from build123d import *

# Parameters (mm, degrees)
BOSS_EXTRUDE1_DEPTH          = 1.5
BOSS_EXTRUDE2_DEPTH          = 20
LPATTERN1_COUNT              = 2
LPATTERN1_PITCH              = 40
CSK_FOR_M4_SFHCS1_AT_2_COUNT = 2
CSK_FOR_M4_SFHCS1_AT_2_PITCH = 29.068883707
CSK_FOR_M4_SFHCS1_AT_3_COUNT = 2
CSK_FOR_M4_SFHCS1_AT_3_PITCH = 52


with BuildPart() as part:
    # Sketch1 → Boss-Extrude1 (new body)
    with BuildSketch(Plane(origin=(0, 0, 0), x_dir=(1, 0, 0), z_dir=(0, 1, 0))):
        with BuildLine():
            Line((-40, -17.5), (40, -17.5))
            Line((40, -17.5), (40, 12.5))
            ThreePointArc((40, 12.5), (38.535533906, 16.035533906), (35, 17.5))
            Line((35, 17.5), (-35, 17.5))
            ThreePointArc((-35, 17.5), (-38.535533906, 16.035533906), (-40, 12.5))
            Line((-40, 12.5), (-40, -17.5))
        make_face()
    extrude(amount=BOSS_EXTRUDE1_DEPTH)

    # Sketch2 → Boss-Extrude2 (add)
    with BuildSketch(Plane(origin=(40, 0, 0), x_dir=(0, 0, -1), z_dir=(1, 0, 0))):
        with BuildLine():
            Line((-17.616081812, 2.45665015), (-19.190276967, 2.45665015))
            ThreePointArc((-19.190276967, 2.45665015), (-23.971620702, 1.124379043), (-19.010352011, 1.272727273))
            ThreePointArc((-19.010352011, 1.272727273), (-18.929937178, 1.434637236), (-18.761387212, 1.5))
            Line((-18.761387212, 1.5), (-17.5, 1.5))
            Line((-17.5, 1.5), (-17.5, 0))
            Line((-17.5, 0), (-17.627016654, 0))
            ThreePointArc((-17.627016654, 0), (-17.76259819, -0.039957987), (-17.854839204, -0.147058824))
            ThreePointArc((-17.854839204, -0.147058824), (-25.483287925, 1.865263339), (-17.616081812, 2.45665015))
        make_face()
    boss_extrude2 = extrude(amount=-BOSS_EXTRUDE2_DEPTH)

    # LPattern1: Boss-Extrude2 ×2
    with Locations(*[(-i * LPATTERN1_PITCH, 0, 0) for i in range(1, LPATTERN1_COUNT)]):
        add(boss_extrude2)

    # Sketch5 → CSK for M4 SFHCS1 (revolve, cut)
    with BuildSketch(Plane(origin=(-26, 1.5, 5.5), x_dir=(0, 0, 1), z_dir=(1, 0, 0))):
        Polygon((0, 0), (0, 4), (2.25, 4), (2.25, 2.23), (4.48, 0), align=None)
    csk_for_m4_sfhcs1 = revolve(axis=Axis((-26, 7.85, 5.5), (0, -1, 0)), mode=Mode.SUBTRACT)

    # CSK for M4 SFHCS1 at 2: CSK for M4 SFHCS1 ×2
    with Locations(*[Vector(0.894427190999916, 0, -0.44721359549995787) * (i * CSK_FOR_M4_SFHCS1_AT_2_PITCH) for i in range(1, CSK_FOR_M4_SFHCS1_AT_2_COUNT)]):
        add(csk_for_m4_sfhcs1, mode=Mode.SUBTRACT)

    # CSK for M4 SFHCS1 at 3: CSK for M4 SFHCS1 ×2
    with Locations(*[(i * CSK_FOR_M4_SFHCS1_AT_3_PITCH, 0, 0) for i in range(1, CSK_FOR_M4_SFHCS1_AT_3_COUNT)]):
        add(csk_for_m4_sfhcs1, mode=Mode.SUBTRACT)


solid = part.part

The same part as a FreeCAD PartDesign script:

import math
import FreeCAD as App
import Part
import Sketcher
from FreeCAD import Vector
Q = App.Units.Quantity


def add_polygon(sketch, points):
    """Adds a closed chain of lines whose ends are joined by coincident constraints."""
    first, n = sketch.GeometryCount, len(points)
    for a, b in zip(points, points[1:] + points[:1]):
        sketch.addGeometry(Part.LineSegment(App.Vector(*a, 0), App.Vector(*b, 0)), False)
    for i in range(n):
        sketch.addConstraint(Sketcher.Constraint("Coincident", first + i, 2, first + (i + 1) % n, 1))

doc = App.newDocument("Part")
params = doc.addObject("Spreadsheet::Sheet", "Params")
for row, (alias, value) in enumerate([
    ("sketch1_radius", "5 mm"),
    ("sketch1_width", "80 mm"),
    ("sketch1_height", "30 mm"),
    ("pad1_length", "1.5 mm"),
    ("sketch2_radius", "4 mm"),
    ("sketch2_radius2", "2.5 mm"),
    ("sketch2_radius3", "0.25 mm"),
    ("sketch2_width", "1.5 mm"),
    ("pad2_length", "20 mm"),
    ("linearpattern_pitch", "40 mm"),
    ("sketch3_width", "4 mm"),
    ("sketch3_width2", "1.77 mm"),
    ("sketch3_height", "4.48 mm"),
    ("groove_angle", "360 deg"),
    ("linearpattern2_pitch", "29.068884 mm"),
    ("linearpattern3_pitch", "52 mm"),
], start=1):
    params.set(f"A{row}", alias)
    params.set(f"B{row}", "=" + value)
    params.setAlias(f"B{row}", alias)

body = doc.addObject("PartDesign::Body", "Body")

sketch1 = body.newObject("Sketcher::SketchObject", "Sketch")
sketch1.AttachmentSupport = (doc.getObject("XZ_Plane"), [""])
sketch1.MapMode = "FlatFace"
sketch1.addGeometry([
    Part.LineSegment(Vector(-40, 18, 0), Vector(40, 18, 0)),
    Part.LineSegment(Vector(40, 18, 0), Vector(40, -12, 0)),
    Part.ArcOfCircle(Part.Circle(Vector(35, -12, 0), Vector(0, 0, 1), 5), math.radians(-90), math.radians(0)),
    Part.LineSegment(Vector(35, -18, 0), Vector(-35, -18, 0)),
    Part.ArcOfCircle(Part.Circle(Vector(-35, -12, 0), Vector(0, 0, 1), 5), math.radians(180), math.radians(270)),
    Part.LineSegment(Vector(-40, -12, 0), Vector(-40, 18, 0)),
], False)
sketch1.addConstraint([
    Sketcher.Constraint("Coincident", 0, 2, 1, 1),
    Sketcher.Constraint("Tangent", 1, 2, 2, 2),
    Sketcher.Constraint("Tangent", 2, 1, 3, 1),
    Sketcher.Constraint("Tangent", 3, 2, 4, 2),
    Sketcher.Constraint("Tangent", 4, 1, 5, 1),
    Sketcher.Constraint("Coincident", 5, 2, 0, 1),
    Sketcher.Constraint("Horizontal", 0),
    Sketcher.Constraint("Vertical", 1),
    Sketcher.Constraint("Horizontal", 3),
    Sketcher.Constraint("Vertical", 5),
    Sketcher.Constraint("Equal", 2, 4),
    Sketcher.Constraint("Radius", 2, 5.0),
    Sketcher.Constraint("DistanceX", 0, 1, 0, 2, 80.0),
    Sketcher.Constraint("DistanceY", 1, 2, 1, 1, 30.0),
    Sketcher.Constraint("DistanceX", -1, 1, 2, 3, 35.0),
    Sketcher.Constraint("DistanceY", 2, 3, -1, 1, 12.5),
])
sketch1.setExpression("Constraints[11]", "Params.sketch1_radius")
sketch1.setExpression("Constraints[12]", "Params.sketch1_width")
sketch1.setExpression("Constraints[13]", "Params.sketch1_height")
pad1 = body.newObject("PartDesign::Pad", "Pad")
pad1.Profile = sketch1
pad1.setExpression("Length", "Params.pad1_length")
pad1.Reversed = True

sketch2 = body.newObject("Sketcher::SketchObject", "Sketch001")
sketch2.AttachmentSupport = (doc.getObject("YZ_Plane"), [""])
sketch2.MapMode = "FlatFace"
sketch2.AttachmentOffset = App.Placement(Vector(0, 0, 40), App.Rotation())
sketch2.addGeometry([
    Part.LineSegment(Vector(2.46, 19.19, 0), Vector(2.46, 17.62, 0)),
    Part.ArcOfCircle(Part.Circle(Vector(1.5, 21.5, 0), Vector(0, 0, 1), 4), math.radians(-76), math.radians(246)),
    Part.ArcOfCircle(Part.Circle(Vector(-0.25, 17.63, 0), Vector(0, 0, 1), 0.25), math.radians(0), math.radians(66)),
    Part.LineSegment(Vector(0, 17.63, 0), Vector(0, 17.5, 0)),
    Part.LineSegment(Vector(0, 17.5, 0), Vector(1.5, 17.5, 0)),
    Part.LineSegment(Vector(1.5, 17.5, 0), Vector(1.5, 18.76, 0)),
    Part.ArcOfCircle(Part.Circle(Vector(1.25, 18.76, 0), Vector(0, 0, 1), 0.25), math.radians(0), math.radians(85)),
    Part.ArcOfCircle(Part.Circle(Vector(1.5, 21.5, 0), Vector(0, 0, 1), 2.5), math.radians(-68), math.radians(265)),
], False)
sketch2.addConstraint([
    Sketcher.Constraint("Coincident", 0, 2, 1, 1),
    Sketcher.Constraint("Tangent", 1, 2, 2, 2),
    Sketcher.Constraint("Tangent", 2, 1, 3, 1),
    Sketcher.Constraint("Coincident", 3, 2, 4, 1),
    Sketcher.Constraint("Coincident", 4, 2, 5, 1),
    Sketcher.Constraint("Tangent", 5, 2, 6, 1),
    Sketcher.Constraint("Tangent", 6, 2, 7, 2),
    Sketcher.Constraint("Coincident", 7, 1, 0, 1),
    Sketcher.Constraint("Vertical", 0),
    Sketcher.Constraint("Vertical", 3),
    Sketcher.Constraint("Horizontal", 4),
    Sketcher.Constraint("Vertical", 5),
    Sketcher.Constraint("Coincident", 7, 3, 1, 3),
    Sketcher.Constraint("Equal", 2, 6),
    Sketcher.Constraint("PointOnObject", 2, 1, -2),
    Sketcher.Constraint("Vertical", 7, 3, 4, 2),
    Sketcher.Constraint("Radius", 1, 4.0),
    Sketcher.Constraint("Radius", 7, 2.5),
    Sketcher.Constraint("Radius", 2, 0.25),
    Sketcher.Constraint("DistanceX", 4, 1, 4, 2, 1.5),
    Sketcher.Constraint("DistanceY", -1, 1, 1, 3, 21.5),
    Sketcher.Constraint("DistanceY", -1, 1, 3, 2, 17.5),
    Sketcher.Constraint("DistanceY", 0, 2, 0, 1, 1.574195),
])
sketch2.setExpression("Constraints[16]", "Params.sketch2_radius")
sketch2.setExpression("Constraints[17]", "Params.sketch2_radius2")
sketch2.setExpression("Constraints[18]", "Params.sketch2_radius3")
sketch2.setExpression("Constraints[19]", "Params.sketch2_width")
pad2 = body.newObject("PartDesign::Pad", "Pad001")
pad2.Profile = sketch2
pad2.setExpression("Length", "Params.pad2_length")
pad2.Reversed = True
doc.recompute()

linearpattern = body.newObject("PartDesign::LinearPattern", "LinearPattern")
linearpattern.Originals = [pad2]
linearpattern.Direction = (doc.getObject("X_Axis"), [""])
linearpattern.Mode = "offset"
linearpattern.setExpression("Offset", "Params.linearpattern_pitch")
linearpattern.Occurrences = 2
linearpattern.Reversed = True
body.Tip = linearpattern

sketch3 = body.newObject("Sketcher::SketchObject", "Sketch002")
sketch3.AttachmentSupport = (doc.getObject("YZ_Plane"), [""])
sketch3.MapMode = "FlatFace"
sketch3.AttachmentOffset = App.Placement(Vector(0, 0, -26), App.Rotation())
add_polygon(sketch3, [(-2.5, 5.5), (1.5, 5.5), (1.5, 10), (-0.7, 7.8), (-2.5, 7.8)])
sketch3.addGeometry(Part.LineSegment(Vector(1.5, 5.5, 0), Vector(-2.5, 5.5, 0)), True)
sketch3.addConstraint([
    Sketcher.Constraint("Horizontal", 0),
    Sketcher.Constraint("Vertical", 1),
    Sketcher.Constraint("Horizontal", 3),
    Sketcher.Constraint("Vertical", 4),
    Sketcher.Constraint("Horizontal", 5),
    Sketcher.Constraint("Coincident", 5, 1, 0, 2),
    Sketcher.Constraint("Vertical", 3, 2, 5, 2),
    Sketcher.Constraint("DistanceX", 0, 1, 0, 2, 4.0),
    Sketcher.Constraint("Angle", 2, Q("-135 deg")),
    Sketcher.Constraint("DistanceX", 3, 2, 3, 1, 1.77),
    Sketcher.Constraint("DistanceY", 1, 1, 1, 2, 4.48),
    Sketcher.Constraint("DistanceX", -1, 1, 0, 2, 1.5),
    Sketcher.Constraint("DistanceY", -1, 1, 0, 2, 5.5),
])
sketch3.setExpression("Constraints[12]", "Params.sketch3_width")
sketch3.setExpression("Constraints[14]", "Params.sketch3_width2")
sketch3.setExpression("Constraints[15]", "Params.sketch3_height")
groove = body.newObject("PartDesign::Groove", "Groove")
groove.Profile = sketch3
groove.ReferenceAxis = (sketch3, ["Axis0"])
groove.setExpression("Angle", "Params.groove_angle")
doc.recompute()

datumline = body.newObject("PartDesign::Line", "DatumLine")
datumline.Placement = App.Placement(Vector(0, 0, 0), App.Rotation(Vector(0, 0, 1), Vector(0.894427191, 0, -0.447213595)))
linearpattern2 = body.newObject("PartDesign::LinearPattern", "LinearPattern001")
linearpattern2.Originals = [groove]
linearpattern2.Direction = (datumline, [""])
linearpattern2.Mode = "offset"
linearpattern2.setExpression("Offset", "Params.linearpattern2_pitch")
linearpattern2.Occurrences = 2
body.Tip = linearpattern2
doc.recompute()

linearpattern3 = body.newObject("PartDesign::LinearPattern", "LinearPattern002")
linearpattern3.Originals = [groove]
linearpattern3.Direction = (doc.getObject("X_Axis"), [""])
linearpattern3.Mode = "offset"
linearpattern3.setExpression("Offset", "Params.linearpattern3_pitch")
linearpattern3.Occurrences = 2
body.Tip = linearpattern3

doc.recompute()
